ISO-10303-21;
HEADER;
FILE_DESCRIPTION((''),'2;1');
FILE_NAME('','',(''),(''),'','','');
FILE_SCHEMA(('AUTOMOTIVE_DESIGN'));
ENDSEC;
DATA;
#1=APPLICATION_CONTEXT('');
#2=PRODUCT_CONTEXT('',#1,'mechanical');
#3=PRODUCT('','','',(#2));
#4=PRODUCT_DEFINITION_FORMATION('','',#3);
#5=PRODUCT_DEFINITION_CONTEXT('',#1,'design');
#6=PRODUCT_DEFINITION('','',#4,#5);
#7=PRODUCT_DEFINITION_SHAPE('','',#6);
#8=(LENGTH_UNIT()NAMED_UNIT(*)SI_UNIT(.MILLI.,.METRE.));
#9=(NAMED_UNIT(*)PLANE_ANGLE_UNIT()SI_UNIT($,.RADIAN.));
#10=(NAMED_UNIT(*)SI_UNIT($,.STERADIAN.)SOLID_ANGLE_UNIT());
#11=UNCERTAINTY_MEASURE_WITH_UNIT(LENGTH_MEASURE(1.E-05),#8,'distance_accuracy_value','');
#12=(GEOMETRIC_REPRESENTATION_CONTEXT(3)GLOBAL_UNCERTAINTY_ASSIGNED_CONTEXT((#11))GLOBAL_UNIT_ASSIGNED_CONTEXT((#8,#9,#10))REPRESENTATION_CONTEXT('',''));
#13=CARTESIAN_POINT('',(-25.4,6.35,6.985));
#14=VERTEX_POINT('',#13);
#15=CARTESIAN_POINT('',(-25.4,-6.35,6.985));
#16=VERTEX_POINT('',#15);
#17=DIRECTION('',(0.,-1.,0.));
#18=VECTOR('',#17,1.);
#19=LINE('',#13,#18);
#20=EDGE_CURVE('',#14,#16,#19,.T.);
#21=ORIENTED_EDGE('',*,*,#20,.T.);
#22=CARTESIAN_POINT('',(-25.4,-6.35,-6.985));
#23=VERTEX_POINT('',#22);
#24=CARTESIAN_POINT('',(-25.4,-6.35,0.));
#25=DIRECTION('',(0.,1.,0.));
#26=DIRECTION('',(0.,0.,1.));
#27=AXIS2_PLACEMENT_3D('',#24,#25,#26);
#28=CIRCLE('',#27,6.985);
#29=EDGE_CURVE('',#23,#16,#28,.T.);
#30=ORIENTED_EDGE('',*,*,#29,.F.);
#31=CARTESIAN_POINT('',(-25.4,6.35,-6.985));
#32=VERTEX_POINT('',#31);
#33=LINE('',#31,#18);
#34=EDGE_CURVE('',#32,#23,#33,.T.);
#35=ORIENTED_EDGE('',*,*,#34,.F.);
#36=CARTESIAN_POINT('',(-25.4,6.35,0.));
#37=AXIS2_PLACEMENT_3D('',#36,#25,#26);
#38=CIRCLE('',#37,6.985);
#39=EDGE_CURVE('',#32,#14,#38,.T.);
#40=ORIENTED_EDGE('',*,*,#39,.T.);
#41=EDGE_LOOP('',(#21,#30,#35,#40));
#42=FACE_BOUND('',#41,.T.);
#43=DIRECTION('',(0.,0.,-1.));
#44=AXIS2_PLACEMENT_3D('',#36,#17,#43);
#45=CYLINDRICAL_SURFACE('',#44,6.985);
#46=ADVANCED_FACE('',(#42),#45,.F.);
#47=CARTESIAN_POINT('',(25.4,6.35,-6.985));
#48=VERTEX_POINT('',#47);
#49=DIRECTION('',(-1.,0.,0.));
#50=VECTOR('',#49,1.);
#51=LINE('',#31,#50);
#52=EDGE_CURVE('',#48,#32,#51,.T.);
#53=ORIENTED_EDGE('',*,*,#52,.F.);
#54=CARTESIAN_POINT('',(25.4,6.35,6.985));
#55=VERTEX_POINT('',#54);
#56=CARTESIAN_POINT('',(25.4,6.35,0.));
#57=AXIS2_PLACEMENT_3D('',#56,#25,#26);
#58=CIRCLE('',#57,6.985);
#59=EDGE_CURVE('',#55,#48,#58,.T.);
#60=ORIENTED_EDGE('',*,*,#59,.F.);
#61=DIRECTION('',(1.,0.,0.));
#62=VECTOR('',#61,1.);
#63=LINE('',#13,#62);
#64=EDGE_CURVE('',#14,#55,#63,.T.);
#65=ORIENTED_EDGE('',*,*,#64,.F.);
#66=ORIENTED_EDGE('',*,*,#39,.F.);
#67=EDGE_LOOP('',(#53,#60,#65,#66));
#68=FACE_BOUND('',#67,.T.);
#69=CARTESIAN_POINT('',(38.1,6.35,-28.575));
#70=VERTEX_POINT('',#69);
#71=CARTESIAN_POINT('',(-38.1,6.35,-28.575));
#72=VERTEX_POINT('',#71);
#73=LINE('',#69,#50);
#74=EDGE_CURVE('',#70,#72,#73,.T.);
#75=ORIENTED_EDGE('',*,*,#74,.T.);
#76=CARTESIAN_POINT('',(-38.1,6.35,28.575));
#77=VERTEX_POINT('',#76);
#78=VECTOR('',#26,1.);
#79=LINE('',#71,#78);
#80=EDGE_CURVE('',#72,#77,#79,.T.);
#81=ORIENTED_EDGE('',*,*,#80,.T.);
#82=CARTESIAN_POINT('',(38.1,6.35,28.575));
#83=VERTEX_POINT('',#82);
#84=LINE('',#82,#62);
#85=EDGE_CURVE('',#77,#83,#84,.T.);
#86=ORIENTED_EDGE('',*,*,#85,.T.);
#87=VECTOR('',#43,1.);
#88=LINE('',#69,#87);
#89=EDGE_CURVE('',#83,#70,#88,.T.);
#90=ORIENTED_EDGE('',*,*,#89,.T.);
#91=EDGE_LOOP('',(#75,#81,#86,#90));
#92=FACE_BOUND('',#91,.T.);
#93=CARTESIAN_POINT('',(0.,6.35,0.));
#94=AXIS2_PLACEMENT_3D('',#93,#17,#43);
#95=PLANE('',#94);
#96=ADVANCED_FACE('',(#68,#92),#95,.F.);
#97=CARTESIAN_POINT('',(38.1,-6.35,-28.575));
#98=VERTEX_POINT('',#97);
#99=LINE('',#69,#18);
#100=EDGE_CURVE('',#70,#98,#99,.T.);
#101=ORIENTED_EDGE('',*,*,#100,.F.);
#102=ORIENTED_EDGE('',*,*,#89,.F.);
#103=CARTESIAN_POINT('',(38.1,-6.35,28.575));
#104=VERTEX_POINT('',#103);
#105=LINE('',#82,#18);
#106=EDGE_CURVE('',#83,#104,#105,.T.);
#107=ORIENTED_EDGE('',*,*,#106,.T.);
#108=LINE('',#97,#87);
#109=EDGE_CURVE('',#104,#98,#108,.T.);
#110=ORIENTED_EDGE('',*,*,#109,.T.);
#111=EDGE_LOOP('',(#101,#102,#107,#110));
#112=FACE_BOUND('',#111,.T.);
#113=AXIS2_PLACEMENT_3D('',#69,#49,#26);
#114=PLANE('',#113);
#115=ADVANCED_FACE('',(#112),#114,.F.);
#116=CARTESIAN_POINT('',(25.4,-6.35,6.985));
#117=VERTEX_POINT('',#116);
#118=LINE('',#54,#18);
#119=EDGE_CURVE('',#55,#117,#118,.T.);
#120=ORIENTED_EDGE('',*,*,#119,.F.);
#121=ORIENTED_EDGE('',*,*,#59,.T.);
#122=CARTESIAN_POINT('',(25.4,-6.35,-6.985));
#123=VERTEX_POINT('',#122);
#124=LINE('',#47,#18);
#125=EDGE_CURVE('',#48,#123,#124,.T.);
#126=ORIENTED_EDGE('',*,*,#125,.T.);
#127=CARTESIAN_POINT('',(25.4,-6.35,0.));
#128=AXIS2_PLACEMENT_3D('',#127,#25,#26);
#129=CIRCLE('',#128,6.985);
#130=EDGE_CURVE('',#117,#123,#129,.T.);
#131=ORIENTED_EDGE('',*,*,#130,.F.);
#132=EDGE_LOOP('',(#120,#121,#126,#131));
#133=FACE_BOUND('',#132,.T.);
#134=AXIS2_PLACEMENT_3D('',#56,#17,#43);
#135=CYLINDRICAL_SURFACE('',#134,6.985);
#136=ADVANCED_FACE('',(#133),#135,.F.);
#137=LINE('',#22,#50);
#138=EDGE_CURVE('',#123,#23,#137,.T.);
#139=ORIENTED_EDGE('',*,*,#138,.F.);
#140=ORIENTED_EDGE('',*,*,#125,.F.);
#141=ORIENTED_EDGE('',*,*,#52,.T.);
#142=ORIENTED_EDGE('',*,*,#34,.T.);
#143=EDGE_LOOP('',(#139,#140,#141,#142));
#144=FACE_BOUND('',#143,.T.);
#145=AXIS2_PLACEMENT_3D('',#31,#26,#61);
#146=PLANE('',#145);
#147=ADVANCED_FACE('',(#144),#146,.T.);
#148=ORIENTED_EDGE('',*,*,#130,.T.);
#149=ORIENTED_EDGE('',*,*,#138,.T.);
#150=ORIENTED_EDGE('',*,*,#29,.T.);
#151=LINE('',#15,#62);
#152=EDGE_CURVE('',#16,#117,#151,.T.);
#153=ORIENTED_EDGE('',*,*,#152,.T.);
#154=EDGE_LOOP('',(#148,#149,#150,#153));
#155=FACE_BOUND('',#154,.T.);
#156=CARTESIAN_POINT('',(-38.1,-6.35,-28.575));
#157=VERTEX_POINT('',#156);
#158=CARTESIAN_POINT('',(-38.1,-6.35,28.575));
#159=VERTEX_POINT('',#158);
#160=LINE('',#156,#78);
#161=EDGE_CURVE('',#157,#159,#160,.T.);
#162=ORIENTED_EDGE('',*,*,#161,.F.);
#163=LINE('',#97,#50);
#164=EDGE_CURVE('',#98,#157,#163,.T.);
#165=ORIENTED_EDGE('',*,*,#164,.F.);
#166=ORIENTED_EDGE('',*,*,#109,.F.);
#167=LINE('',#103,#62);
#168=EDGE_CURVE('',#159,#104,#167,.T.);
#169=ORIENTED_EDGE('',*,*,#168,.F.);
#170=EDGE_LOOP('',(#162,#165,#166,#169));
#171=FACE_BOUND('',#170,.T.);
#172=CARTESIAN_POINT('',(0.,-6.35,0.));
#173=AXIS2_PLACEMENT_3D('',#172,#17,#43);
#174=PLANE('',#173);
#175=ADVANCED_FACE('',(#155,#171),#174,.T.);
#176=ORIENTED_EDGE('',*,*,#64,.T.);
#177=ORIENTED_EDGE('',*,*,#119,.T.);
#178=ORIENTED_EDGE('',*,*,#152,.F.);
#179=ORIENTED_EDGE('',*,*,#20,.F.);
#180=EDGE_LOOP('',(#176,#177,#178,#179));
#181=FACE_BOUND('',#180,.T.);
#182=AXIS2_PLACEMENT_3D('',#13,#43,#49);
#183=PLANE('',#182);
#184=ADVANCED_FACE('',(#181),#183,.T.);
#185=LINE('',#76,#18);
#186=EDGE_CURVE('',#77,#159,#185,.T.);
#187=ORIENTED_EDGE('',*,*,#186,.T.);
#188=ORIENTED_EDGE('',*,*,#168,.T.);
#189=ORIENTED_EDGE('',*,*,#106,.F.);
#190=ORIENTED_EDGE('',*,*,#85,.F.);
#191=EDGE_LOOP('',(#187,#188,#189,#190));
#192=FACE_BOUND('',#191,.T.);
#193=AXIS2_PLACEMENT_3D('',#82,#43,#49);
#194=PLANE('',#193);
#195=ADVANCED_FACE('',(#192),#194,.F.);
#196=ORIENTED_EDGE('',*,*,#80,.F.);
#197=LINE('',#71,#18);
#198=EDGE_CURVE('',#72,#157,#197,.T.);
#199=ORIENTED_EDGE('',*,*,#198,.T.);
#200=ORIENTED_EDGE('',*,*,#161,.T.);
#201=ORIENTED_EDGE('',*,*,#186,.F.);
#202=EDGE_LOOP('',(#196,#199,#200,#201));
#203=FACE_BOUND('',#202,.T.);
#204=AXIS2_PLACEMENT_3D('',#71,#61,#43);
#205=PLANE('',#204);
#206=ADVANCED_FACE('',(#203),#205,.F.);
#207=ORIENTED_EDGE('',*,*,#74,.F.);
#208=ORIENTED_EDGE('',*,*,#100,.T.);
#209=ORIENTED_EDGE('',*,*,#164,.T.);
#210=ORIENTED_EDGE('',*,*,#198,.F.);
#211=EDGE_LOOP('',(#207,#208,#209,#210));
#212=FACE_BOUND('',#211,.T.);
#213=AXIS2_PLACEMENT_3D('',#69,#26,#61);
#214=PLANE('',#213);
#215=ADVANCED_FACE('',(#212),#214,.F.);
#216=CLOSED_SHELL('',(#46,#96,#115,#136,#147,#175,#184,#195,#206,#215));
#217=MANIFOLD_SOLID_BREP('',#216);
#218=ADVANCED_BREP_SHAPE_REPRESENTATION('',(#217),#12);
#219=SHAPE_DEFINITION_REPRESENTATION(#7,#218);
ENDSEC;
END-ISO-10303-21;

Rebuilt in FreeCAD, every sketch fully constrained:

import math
import FreeCAD as App
import Part
import Sketcher

V = App.Vector
Q = App.Units.Quantity


def add_polygon(sketch, points):
    """Adds a closed chain of lines whose ends are joined by coincident constraints."""
    first, n = sketch.GeometryCount, len(points)
    for a, b in zip(points, points[1:] + points[:1]):
        sketch.addGeometry(Part.LineSegment(App.Vector(*a, 0), App.Vector(*b, 0)), False)
    for i in range(n):
        sketch.addConstraint(Sketcher.Constraint("Coincident", first + i, 2, first + (i + 1) % n, 1))

doc = App.newDocument("Part")
params = doc.addObject("Spreadsheet::Sheet", "Params")
for row, (alias, value) in enumerate([
    ("sketch1_width", "3 in"),
    ("sketch1_width2", "2 in"),
    ("sketch1_radius", "0.275 in"),
    ("sketch1_height", "2.25 in"),
    ("pad1_length", "0.5 in"),
], start=1):
    params.set(f"A{row}", alias)
    params.set(f"B{row}", "=" + value)
    params.setAlias(f"B{row}", alias)

body = doc.addObject("PartDesign::Body", "Body")

# Sketch on XZ plane
sketch1 = doc.addObject("Sketcher::SketchObject", "Sketch")
body.addObject(sketch1)
sketch1.AttachmentSupport = (doc.XZ_Plane, [""])
sketch1.MapMode = "FlatFace"
add_polygon(sketch1, [(-38, -29), (-38, 29), (38, 29), (38, -29)])  # lines 0-3
sketch1.addGeometry(Part.ArcOfCircle(Part.Circle(V(-25, 0, 0), V(0, 0, 1), 7), math.radians(90), math.radians(270)), False)  # 4
sketch1.addGeometry(Part.LineSegment(V(-25, -7, 0), V(25, -7, 0)), False)  # 5
sketch1.addGeometry(Part.ArcOfCircle(Part.Circle(V(25, 0, 0), V(0, 0, 1), 7), math.radians(-90), math.radians(90)), False)  # 6
sketch1.addGeometry(Part.LineSegment(V(25, 7, 0), V(-25, 7, 0)), False)  # 7
sketch1.addConstraint(Sketcher.Constraint("Tangent", 4, 2, 5, 1))
sketch1.addConstraint(Sketcher.Constraint("Tangent", 5, 2, 6, 1))
sketch1.addConstraint(Sketcher.Constraint("Tangent", 6, 2, 7, 1))
sketch1.addConstraint(Sketcher.Constraint("Tangent", 7, 2, 4, 1))
sketch1.addConstraint(Sketcher.Constraint("Vertical", 0))
sketch1.addConstraint(Sketcher.Constraint("Horizontal", 1))
sketch1.addConstraint(Sketcher.Constraint("Vertical", 2))
sketch1.addConstraint(Sketcher.Constraint("Horizontal", 3))
sketch1.addConstraint(Sketcher.Constraint("Horizontal", 5))
sketch1.addConstraint(Sketcher.Constraint("Horizontal", 7))
sketch1.addConstraint(Sketcher.Constraint("Symmetric", 4, 3, 6, 3, -1, 1))
sketch1.addConstraint(Sketcher.Constraint("Symmetric", 0, 2, 2, 2, -1, 1))
sketch1.addConstraint(Sketcher.Constraint("DistanceX", 1, 1, 1, 2, Q("3 in")))
sketch1.addConstraint(Sketcher.Constraint("DistanceX", 5, 1, 5, 2, Q("2 in")))
sketch1.addConstraint(Sketcher.Constraint("Radius", 4, Q("0.275 in")))
sketch1.addConstraint(Sketcher.Constraint("DistanceY", 0, 1, 0, 2, Q("2.25 in")))
sketch1.setExpression("Constraints[16]", "Params.sketch1_width")
sketch1.setExpression("Constraints[17]", "Params.sketch1_width2")
sketch1.setExpression("Constraints[18]", "Params.sketch1_radius")
sketch1.setExpression("Constraints[19]", "Params.sketch1_height")
pad1 = doc.addObject("PartDesign::Pad", "Pad")
body.addObject(pad1)
pad1.Profile = sketch1
pad1.setExpression("Length", "Params.pad1_length")
pad1.Midplane = True

doc.recompute()
